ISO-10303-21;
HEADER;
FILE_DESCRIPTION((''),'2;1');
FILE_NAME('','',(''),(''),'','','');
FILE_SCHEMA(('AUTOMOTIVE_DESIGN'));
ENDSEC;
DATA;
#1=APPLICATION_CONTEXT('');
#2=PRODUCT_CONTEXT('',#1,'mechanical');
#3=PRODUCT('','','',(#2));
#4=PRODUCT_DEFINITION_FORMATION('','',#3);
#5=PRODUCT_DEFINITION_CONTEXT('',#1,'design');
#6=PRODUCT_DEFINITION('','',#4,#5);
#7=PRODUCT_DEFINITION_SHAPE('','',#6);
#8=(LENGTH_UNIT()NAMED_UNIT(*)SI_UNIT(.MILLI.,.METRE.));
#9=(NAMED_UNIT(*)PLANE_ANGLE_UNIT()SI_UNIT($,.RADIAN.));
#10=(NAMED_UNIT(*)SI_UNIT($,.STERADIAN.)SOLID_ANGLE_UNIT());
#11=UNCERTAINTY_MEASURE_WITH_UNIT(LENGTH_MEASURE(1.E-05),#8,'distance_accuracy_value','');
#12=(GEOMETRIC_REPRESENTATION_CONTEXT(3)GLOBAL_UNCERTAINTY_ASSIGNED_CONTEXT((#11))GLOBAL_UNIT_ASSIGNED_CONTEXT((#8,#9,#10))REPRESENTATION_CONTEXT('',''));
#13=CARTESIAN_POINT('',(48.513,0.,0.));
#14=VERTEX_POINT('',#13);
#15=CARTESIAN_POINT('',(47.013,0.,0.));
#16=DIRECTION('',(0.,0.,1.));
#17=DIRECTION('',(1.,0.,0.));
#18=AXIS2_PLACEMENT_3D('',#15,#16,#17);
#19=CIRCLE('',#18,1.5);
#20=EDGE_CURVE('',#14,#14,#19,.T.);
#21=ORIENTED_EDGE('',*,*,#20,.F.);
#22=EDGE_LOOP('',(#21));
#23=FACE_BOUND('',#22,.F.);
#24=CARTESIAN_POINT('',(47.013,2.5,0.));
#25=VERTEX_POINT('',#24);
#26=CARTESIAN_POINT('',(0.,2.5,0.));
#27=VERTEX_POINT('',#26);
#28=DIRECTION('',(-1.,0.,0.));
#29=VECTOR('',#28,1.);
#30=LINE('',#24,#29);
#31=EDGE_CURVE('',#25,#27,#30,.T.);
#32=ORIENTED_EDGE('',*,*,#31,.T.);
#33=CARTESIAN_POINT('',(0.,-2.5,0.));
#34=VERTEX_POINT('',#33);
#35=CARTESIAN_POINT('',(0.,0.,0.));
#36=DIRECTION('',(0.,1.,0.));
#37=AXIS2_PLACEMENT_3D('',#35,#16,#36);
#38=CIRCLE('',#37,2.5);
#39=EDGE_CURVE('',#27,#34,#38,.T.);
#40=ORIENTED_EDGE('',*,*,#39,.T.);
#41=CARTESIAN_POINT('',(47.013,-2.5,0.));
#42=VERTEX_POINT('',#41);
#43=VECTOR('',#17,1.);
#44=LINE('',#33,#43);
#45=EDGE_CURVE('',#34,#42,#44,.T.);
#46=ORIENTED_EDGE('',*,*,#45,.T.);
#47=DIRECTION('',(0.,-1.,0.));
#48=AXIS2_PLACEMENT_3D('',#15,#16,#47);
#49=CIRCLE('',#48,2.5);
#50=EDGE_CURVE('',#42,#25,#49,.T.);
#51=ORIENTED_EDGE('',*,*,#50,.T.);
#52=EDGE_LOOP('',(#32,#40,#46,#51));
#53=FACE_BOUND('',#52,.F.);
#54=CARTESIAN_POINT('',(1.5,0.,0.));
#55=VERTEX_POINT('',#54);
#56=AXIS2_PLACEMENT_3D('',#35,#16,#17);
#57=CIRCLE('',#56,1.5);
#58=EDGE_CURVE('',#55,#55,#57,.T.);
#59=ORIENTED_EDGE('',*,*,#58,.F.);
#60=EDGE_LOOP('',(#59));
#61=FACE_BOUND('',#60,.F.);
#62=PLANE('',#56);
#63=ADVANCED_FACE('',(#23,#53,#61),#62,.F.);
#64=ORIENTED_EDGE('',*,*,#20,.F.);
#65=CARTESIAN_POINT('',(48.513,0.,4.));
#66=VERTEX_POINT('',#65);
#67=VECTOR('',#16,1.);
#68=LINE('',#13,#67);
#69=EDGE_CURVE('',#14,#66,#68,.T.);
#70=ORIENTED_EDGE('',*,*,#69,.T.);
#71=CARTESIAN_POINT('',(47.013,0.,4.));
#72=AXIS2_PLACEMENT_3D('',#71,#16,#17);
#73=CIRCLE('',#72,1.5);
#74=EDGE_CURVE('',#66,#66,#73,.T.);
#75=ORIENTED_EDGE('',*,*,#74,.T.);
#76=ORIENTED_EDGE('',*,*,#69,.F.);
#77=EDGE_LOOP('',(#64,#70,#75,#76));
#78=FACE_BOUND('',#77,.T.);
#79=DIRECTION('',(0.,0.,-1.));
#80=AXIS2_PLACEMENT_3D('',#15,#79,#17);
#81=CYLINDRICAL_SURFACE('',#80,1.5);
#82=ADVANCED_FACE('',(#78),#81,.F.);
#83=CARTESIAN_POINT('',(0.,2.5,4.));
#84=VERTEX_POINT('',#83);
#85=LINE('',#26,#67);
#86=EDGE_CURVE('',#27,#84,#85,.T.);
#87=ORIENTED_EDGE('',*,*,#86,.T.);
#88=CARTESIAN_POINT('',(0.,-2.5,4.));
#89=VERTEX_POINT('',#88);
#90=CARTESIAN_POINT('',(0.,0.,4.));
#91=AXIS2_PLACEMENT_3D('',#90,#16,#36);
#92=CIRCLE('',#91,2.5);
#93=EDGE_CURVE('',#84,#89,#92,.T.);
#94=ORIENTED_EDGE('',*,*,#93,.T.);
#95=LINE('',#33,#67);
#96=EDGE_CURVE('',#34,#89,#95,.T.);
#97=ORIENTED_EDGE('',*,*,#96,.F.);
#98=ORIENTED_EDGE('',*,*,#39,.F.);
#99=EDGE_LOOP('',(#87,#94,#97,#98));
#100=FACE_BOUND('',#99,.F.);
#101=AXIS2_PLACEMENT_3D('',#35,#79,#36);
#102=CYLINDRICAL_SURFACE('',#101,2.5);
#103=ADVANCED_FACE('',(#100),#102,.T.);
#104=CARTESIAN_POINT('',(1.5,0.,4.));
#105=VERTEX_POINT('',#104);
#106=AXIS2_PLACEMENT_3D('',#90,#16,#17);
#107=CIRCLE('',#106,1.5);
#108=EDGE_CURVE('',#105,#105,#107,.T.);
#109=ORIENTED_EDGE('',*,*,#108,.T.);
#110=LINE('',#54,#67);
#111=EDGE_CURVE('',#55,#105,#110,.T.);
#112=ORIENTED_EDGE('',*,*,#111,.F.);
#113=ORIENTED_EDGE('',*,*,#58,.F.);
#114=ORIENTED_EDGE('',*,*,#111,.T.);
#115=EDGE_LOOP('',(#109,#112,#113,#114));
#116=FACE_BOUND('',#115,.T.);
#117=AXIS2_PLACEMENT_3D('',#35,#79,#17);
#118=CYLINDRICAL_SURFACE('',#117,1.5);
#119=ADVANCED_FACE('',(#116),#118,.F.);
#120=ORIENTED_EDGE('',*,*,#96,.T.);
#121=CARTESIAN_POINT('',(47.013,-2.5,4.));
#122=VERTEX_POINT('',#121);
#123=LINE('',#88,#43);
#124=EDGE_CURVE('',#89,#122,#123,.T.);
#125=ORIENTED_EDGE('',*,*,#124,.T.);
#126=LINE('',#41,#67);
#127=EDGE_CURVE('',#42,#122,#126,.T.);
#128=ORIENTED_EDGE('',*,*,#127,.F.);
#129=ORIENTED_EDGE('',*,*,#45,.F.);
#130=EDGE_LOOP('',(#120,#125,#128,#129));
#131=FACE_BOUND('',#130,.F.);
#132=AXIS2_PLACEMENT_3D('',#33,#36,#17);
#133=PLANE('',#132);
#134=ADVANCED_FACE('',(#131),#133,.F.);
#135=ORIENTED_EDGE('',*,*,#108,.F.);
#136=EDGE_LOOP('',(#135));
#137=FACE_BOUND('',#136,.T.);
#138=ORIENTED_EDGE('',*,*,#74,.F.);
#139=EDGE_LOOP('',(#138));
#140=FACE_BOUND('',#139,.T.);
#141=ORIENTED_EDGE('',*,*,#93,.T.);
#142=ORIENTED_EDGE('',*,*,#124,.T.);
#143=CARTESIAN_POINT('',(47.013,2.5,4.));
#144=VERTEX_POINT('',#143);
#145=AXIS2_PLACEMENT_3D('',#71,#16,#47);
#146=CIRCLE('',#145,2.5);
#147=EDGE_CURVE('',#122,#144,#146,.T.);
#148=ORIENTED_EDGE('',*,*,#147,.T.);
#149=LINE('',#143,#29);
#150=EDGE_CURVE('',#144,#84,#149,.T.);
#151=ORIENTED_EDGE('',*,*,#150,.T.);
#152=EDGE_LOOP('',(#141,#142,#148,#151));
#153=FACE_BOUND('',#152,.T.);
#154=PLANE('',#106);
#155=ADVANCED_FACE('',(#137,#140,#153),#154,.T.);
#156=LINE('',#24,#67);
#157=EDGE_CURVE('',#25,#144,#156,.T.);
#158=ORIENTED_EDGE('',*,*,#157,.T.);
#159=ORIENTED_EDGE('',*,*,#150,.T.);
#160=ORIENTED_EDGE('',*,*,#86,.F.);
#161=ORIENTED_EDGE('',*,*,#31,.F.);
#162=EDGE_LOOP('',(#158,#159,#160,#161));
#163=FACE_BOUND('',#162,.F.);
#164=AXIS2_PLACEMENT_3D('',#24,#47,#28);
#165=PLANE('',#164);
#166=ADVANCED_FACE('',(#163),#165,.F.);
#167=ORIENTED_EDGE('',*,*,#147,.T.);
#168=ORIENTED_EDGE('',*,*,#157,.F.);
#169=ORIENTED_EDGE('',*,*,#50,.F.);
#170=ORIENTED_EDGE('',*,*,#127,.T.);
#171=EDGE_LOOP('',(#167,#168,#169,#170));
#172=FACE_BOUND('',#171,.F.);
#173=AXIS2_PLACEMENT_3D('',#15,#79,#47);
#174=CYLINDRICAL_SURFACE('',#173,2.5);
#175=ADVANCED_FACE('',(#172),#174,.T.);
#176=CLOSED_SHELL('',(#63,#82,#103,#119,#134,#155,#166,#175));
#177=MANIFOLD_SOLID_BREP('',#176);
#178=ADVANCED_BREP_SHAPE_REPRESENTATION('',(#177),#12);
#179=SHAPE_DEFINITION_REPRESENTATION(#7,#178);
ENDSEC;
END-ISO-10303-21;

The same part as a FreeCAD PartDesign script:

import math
import FreeCAD as App
import Part
import Sketcher

doc = App.newDocument("Part")
params = doc.addObject("Spreadsheet::Sheet", "Params")
for row, (alias, value) in enumerate([
    ("sketch1_diameter", "3 mm"),
    ("sketch1_radius", "2.5 mm"),
    ("pad1_length", "4 mm"),
], start=1):
    params.set(f"A{row}", alias)
    params.set(f"B{row}", "=" + value)
    params.setAlias(f"B{row}", alias)

body = doc.addObject("PartDesign::Body", "Body")

sketch1 = body.newObject("Sketcher::SketchObject", "Sketch")
sketch1.AttachmentSupport = (doc.getObject("XY_Plane"), [""])
sketch1.MapMode = "FlatFace"
sketch1.addGeometry([
    Part.ArcOfCircle(Part.Circle(App.Vector(0, 0, 0), App.Vector(0, 0, 1), 2.5), math.radians(90), math.radians(270)),
    Part.LineSegment(App.Vector(0, -2.5, 0), App.Vector(47, -2.5, 0)),
    Part.ArcOfCircle(Part.Circle(App.Vector(47, 0, 0), App.Vector(0, 0, 1), 2.5), math.radians(-90), math.radians(90)),
    Part.LineSegment(App.Vector(47, 2.5, 0), App.Vector(0, 2.5, 0)),
    Part.Circle(App.Vector(0, 0, 0), App.Vector(0, 0, 1), 1.5),
    Part.Circle(App.Vector(47, 0, 0), App.Vector(0, 0, 1), 1.5),
], False)
sketch1.addConstraint([
    Sketcher.Constraint("Tangent", 0, 2, 1, 1),
    Sketcher.Constraint("Tangent", 1, 2, 2, 1),
    Sketcher.Constraint("Tangent", 2, 2, 3, 1),
    Sketcher.Constraint("Tangent", 3, 2, 0, 1),
    Sketcher.Constraint("Horizontal", 1),
    Sketcher.Constraint("Horizontal", 3),
    Sketcher.Constraint("Coincident", 0, 3, -1, 1),
    Sketcher.Constraint("Coincident", 4, 3, -1, 1),
    Sketcher.Constraint("Coincident", 5, 3, 2, 3),
    Sketcher.Constraint("Equal", 4, 5),
    Sketcher.Constraint("Diameter", 4, 3.0),
    Sketcher.Constraint("Radius", 0, 2.5),
    Sketcher.Constraint("DistanceX", 1, 1, 1, 2, 47.013),
])
sketch1.setExpression("Constraints[10]", "Params.sketch1_diameter")
sketch1.setExpression("Constraints[11]", "Params.sketch1_radius")
pad1 = body.newObject("PartDesign::Pad", "Pad")
pad1.Profile = sketch1
pad1.setExpression("Length", "Params.pad1_length")

doc.recompute()
